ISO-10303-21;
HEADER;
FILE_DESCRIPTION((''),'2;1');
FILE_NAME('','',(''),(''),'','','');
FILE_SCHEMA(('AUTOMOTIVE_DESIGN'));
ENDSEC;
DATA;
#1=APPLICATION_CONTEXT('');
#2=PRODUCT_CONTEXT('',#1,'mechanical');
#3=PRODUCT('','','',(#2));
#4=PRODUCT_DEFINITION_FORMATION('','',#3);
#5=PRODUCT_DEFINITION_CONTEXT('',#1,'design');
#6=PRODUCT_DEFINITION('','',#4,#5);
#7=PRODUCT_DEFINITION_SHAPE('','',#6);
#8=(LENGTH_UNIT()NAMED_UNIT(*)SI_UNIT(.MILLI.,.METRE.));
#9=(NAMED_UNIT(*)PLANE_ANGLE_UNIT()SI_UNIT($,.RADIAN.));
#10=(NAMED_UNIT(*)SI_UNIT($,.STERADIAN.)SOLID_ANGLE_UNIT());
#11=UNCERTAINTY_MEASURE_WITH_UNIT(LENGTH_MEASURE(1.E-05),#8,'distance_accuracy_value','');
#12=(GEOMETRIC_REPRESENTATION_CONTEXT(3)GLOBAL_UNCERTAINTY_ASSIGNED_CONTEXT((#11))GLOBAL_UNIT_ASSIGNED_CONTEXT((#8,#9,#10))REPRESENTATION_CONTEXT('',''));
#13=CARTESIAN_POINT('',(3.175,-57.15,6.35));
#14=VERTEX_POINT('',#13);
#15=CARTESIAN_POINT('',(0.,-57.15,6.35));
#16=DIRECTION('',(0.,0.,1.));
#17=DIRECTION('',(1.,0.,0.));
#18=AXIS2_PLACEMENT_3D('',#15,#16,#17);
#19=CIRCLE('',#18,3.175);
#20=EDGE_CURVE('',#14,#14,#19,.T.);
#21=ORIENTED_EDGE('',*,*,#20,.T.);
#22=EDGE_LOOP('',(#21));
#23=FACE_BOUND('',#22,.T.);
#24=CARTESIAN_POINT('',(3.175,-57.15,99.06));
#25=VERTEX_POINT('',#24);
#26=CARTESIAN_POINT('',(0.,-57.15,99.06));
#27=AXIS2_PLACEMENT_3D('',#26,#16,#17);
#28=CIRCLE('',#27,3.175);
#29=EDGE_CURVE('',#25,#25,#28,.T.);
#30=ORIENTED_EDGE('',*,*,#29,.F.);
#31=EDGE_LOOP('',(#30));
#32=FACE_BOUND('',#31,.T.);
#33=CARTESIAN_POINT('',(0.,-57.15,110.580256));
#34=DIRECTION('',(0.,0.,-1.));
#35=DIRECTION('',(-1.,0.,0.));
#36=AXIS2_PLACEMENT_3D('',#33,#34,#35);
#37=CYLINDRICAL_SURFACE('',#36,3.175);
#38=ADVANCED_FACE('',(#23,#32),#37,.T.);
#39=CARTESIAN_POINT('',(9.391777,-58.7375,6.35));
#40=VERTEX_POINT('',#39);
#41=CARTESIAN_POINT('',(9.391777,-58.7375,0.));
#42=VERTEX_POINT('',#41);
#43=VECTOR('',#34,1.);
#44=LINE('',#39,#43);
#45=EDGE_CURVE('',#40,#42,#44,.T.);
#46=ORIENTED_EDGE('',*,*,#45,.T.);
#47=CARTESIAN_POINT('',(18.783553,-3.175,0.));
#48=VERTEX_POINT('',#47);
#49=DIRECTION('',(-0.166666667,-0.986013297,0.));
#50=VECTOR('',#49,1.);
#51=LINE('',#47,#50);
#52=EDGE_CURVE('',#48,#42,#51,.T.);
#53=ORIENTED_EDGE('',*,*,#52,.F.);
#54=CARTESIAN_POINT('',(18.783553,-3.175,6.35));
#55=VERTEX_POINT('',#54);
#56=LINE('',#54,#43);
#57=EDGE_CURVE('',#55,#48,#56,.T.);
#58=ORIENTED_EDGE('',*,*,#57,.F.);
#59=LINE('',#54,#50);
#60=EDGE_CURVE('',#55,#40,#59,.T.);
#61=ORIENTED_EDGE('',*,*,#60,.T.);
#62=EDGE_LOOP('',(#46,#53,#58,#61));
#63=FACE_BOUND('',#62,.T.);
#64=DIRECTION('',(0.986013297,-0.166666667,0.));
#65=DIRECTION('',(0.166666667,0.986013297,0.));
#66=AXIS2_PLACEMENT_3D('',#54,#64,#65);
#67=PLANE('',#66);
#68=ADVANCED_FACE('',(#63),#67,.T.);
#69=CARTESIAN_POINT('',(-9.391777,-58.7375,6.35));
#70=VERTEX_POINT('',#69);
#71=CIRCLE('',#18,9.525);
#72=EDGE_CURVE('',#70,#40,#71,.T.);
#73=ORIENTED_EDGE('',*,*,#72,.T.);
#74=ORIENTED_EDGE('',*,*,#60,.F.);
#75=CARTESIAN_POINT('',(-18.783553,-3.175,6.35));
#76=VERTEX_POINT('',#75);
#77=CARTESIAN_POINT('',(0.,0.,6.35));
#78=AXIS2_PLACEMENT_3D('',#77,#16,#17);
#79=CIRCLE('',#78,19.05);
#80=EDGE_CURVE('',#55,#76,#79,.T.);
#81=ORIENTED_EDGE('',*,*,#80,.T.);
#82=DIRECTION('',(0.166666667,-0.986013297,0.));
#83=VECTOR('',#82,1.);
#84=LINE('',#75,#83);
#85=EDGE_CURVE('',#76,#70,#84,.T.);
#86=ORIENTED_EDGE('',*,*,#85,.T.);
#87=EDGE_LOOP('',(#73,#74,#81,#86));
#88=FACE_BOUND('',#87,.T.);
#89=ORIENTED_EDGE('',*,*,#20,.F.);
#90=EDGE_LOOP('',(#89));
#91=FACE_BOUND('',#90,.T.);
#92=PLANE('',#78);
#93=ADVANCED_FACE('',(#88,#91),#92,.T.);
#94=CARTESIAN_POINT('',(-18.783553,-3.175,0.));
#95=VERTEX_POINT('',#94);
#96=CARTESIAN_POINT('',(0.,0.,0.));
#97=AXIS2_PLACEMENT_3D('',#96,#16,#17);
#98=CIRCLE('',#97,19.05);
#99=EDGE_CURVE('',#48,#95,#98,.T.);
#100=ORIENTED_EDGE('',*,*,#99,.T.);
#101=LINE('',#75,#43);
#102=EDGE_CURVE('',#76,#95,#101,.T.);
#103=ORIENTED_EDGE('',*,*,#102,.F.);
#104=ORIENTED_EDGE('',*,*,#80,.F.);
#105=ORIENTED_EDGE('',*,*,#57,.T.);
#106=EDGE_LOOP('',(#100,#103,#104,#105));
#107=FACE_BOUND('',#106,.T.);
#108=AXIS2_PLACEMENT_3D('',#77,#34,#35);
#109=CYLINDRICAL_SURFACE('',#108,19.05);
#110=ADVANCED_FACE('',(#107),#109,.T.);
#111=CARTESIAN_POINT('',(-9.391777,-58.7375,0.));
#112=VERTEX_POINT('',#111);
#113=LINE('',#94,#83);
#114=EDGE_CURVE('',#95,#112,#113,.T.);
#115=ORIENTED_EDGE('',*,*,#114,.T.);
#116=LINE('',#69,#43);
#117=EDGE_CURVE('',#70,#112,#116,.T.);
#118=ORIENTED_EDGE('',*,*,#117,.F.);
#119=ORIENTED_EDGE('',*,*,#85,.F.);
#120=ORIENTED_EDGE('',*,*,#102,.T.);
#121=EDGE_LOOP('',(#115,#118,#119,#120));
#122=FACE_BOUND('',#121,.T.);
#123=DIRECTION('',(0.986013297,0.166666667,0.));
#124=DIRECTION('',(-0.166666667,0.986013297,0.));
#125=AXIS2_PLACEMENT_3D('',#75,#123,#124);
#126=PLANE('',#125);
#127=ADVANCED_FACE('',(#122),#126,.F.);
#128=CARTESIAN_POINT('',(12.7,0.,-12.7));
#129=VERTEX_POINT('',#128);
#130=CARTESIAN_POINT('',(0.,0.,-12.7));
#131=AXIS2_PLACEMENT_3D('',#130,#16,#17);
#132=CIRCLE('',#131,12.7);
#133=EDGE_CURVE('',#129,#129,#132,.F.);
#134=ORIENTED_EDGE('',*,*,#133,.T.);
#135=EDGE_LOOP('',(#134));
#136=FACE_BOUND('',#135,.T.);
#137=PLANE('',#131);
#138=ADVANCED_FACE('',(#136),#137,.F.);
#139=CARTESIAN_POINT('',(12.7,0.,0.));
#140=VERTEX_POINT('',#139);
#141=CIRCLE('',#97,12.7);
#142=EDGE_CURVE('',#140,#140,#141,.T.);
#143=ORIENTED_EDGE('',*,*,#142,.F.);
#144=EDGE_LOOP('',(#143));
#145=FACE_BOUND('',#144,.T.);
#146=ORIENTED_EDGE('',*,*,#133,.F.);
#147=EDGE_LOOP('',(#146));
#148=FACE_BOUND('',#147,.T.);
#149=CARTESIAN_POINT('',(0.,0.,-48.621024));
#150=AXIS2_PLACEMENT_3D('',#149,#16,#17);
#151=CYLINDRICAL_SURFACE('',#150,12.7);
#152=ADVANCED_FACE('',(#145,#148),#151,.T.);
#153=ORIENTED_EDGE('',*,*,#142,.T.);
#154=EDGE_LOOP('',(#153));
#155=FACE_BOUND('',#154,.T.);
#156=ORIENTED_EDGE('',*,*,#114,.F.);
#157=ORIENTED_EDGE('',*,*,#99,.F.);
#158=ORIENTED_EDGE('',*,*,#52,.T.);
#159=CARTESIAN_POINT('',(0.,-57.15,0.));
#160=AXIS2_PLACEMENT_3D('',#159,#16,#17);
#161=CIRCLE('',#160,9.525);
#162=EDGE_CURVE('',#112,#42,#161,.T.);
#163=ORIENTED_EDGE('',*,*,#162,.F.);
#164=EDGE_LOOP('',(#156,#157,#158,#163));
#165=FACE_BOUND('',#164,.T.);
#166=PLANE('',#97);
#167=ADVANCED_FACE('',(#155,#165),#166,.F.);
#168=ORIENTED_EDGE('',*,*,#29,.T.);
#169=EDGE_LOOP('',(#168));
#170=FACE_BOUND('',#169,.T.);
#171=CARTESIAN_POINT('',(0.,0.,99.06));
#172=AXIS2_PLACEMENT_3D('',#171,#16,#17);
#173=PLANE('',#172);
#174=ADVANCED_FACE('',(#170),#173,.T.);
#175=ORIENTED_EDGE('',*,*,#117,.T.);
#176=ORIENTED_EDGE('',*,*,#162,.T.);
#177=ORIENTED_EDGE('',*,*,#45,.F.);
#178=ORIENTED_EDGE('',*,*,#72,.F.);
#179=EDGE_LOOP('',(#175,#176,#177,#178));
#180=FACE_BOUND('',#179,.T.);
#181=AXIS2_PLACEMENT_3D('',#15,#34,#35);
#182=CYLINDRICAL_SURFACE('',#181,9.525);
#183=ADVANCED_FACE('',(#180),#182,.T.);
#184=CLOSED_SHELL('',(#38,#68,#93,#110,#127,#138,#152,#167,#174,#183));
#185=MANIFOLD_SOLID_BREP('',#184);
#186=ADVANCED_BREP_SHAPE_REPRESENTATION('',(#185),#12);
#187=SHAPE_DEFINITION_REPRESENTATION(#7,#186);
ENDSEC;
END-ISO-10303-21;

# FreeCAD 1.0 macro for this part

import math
import FreeCAD as App
import Part
import Sketcher

V = App.Vector
Q = App.Units.Quantity

doc = App.newDocument("Part")
params = doc.addObject("Spreadsheet::Sheet", "Params")
for row, (alias, value) in enumerate([
    ("sketch1_diameter", "1 in"),
    ("pad1_length", "0.5 in"),
    ("sketch2_diameter", "0.25 in"),
    ("sketch2_radius", "0.75 in"),
    ("sketch2_radius2", "0.375 in"),
    ("pad2_length", "0.25 in"),
    ("sketch3_diameter", "0.25 in"),
    ("pad3_length", "3.9 in"),
], start=1):
    params.set(f"A{row}", alias)
    params.set(f"B{row}", "=" + value)
    params.setAlias(f"B{row}", alias)

body = doc.addObject("PartDesign::Body", "Body")

sketch1 = body.newObject("Sketcher::SketchObject", "Sketch")
sketch1.AttachmentSupport = (doc.getObject("XY_Plane"), [""])
sketch1.MapMode = "FlatFace"
sketch1.addGeometry(Part.Circle(V(0, 0, 0), V(0, 0, 1), 13), False)
sketch1.addConstraint([
    Sketcher.Constraint("Coincident", 0, 3, -1, 1),
    Sketcher.Constraint("Diameter", 0, Q("1 in")),
])
sketch1.setExpression("Constraints[1]", "Params.sketch1_diameter")
pad1 = body.newObject("PartDesign::Pad", "Pad")
pad1.Profile = sketch1
pad1.setExpression("Length", "Params.pad1_length")
pad1.Reversed = True

sketch2 = body.newObject("Sketcher::SketchObject", "Sketch001")
sketch2.AttachmentSupport = (doc.getObject("XY_Plane"), [""])
sketch2.MapMode = "FlatFace"
sketch2.addGeometry([
    Part.LineSegment(V(9.4, -58.7, 0), V(18.8, -3.2, 0)),
    Part.ArcOfCircle(Part.Circle(V(0, 0, 0), V(0, 0, 1), 19.1), math.radians(-10), math.radians(190)),
    Part.LineSegment(V(-18.8, -3.2, 0), V(-9.4, -58.7, 0)),
    Part.ArcOfCircle(Part.Circle(V(0, -57.1, 0), V(0, 0, 1), 9.5), math.radians(-170), math.radians(-10)),
    Part.Circle(V(0, -57.1, 0), V(0, 0, 1), 3.2),
], False)
sketch2.addConstraint([
    Sketcher.Constraint("Tangent", 0, 2, 1, 1),
    Sketcher.Constraint("Tangent", 1, 2, 2, 1),
    Sketcher.Constraint("Tangent", 2, 2, 3, 1),
    Sketcher.Constraint("Tangent", 3, 2, 0, 1),
    Sketcher.Constraint("Coincident", 1, 3, -1, 1),
    Sketcher.Constraint("Coincident", 4, 3, 3, 3),
    Sketcher.Constraint("PointOnObject", 3, 3, -2),
    Sketcher.Constraint("Diameter", 4, Q("0.25 in")),
    Sketcher.Constraint("Radius", 1, Q("0.75 in")),
    Sketcher.Constraint("Radius", 3, Q("0.375 in")),
    Sketcher.Constraint("DistanceY", 3, 3, -1, 1, Q("2.25 in")),
])
sketch2.setExpression("Constraints[7]", "Params.sketch2_diameter")
sketch2.setExpression("Constraints[8]", "Params.sketch2_radius")
sketch2.setExpression("Constraints[9]", "Params.sketch2_radius2")
pad2 = body.newObject("PartDesign::Pad", "Pad001")
pad2.Profile = sketch2
pad2.setExpression("Length", "Params.pad2_length")

sketch3 = body.newObject("Sketcher::SketchObject", "Sketch002")
sketch3.AttachmentSupport = (doc.getObject("XY_Plane"), [""])
sketch3.MapMode = "FlatFace"
sketch3.addGeometry(Part.Circle(V(0, -57.1, 0), V(0, 0, 1), 3.2), False)
sketch3.addConstraint([
    Sketcher.Constraint("PointOnObject", 0, 3, -2),
    Sketcher.Constraint("Diameter", 0, Q("0.25 in")),
    Sketcher.Constraint("DistanceY", 0, 3, -1, 1, Q("2.25 in")),
])
sketch3.setExpression("Constraints[1]", "Params.sketch3_diameter")
pad3 = body.newObject("PartDesign::Pad", "Pad002")
pad3.Profile = sketch3
pad3.setExpression("Length", "Params.pad3_length")

doc.recompute()
